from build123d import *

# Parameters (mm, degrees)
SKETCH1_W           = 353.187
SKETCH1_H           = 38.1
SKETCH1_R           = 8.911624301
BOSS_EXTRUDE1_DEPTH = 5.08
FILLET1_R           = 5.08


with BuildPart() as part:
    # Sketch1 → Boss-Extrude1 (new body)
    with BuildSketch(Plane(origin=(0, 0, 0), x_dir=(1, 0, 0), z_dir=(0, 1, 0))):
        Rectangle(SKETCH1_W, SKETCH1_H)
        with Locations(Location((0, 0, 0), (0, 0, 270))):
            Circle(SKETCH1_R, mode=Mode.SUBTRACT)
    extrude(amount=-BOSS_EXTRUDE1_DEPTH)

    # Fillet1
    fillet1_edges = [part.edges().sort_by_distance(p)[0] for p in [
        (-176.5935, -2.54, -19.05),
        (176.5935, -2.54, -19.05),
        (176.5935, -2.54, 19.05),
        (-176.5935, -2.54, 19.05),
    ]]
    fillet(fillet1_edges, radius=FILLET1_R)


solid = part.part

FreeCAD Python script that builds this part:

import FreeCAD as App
import Part
import Sketcher

V = App.Vector
Q = App.Units.Quantity


def edges_at(feature, points):
    """Names of the edges that pass closest to the given points."""
    edges = feature.Shape.Edges
    near = lambda p: min(range(len(edges)), key=lambda i: edges[i].distToShape(Part.Vertex(*p))[0])
    return sorted({f"Edge{near(p) + 1}" for p in points})

doc = App.newDocument("Part")
body = doc.addObject("PartDesign::Body", "Body")

# Sketch on XZ plane
sketch1 = doc.addObject("Sketcher::SketchObject", "Sketch")
body.addObject(sketch1)
sketch1.AttachmentSupport = (doc.XZ_Plane, [""])
sketch1.MapMode = "FlatFace"
sketch1.addGeometry(Part.LineSegment(V(-177, -19, 0), V(-177, 19, 0)), False)
sketch1.addGeometry(Part.LineSegment(V(-177, 19, 0), V(177, 19, 0)), False)
sketch1.addGeometry(Part.LineSegment(V(177, 19, 0), V(177, -19, 0)), False)
sketch1.addGeometry(Part.LineSegment(V(177, -19, 0), V(-177, -19, 0)), False)
sketch1.addGeometry(Part.Circle(V(0, 0, 0), V(0, 0, 1), 9), False)
sketch1.addConstraint(Sketcher.Constraint("Coincident", 0, 2, 1, 1))
sketch1.addConstraint(Sketcher.Constraint("Coincident", 1, 2, 2, 1))
sketch1.addConstraint(Sketcher.Constraint("Coincident", 2, 2, 3, 1))
sketch1.addConstraint(Sketcher.Constraint("Coincident", 3, 2, 0, 1))
sketch1.addConstraint(Sketcher.Constraint("Vertical", 0))
sketch1.addConstraint(Sketcher.Constraint("Horizontal", 1))
sketch1.addConstraint(Sketcher.Constraint("Vertical", 2))
sketch1.addConstraint(Sketcher.Constraint("Horizontal", 3))
sketch1.addConstraint(Sketcher.Constraint("Coincident", 4, 3, -1, 1))
sketch1.addConstraint(Sketcher.Constraint("Symmetric", 0, 2, 2, 2, -1, 1))
sketch1.addConstraint(Sketcher.Constraint("DistanceY", 0, 1, 0, 2, Q("1.5 in")))
sketch1.addConstraint(Sketcher.Constraint("DistanceX", 1, 1, 1, 2, Q("13.905 in")))
sketch1.addConstraint(Sketcher.Constraint("Diameter", 4, 17.823249))
pad1 = doc.addObject("PartDesign::Pad", "Pad")
body.addObject(pad1)
pad1.Profile = sketch1
pad1.Length = Q("0.2 in")
doc.recompute()

fillet = doc.addObject("PartDesign::Fillet", "Fillet")
body.addObject(fillet)
fillet.Base = (pad1, edges_at(pad1, [
    (-176.594, -2.54, -19.05),
    (176.594, -2.54, -19.05),
    (176.594, -2.54, 19.05),
    (-176.594, -2.54, 19.05),
]))
fillet.Radius = Q("0.2 in")

doc.recompute()
